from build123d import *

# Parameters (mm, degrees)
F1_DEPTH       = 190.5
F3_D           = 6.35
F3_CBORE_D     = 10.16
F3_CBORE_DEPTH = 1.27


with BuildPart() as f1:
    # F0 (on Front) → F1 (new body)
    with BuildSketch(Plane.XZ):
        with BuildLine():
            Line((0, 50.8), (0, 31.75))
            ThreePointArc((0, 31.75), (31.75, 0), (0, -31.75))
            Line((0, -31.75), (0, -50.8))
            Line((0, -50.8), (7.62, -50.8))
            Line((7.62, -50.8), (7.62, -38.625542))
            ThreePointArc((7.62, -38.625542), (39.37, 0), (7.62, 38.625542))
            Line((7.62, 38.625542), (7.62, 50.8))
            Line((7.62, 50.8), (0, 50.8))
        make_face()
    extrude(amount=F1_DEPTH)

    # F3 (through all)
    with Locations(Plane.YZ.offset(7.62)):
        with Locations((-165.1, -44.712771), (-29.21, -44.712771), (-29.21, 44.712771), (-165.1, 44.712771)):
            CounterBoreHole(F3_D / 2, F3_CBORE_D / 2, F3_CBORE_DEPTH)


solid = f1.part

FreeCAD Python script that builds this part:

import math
import FreeCAD as App
import Part
import Sketcher

V = App.Vector
Q = App.Units.Quantity

doc = App.newDocument("Part")
body = doc.addObject("PartDesign::Body", "Body")

# Sketch on XZ plane
sketch1 = body.newObject("Sketcher::SketchObject", "Sketch")
sketch1.AttachmentSupport = (doc.getObject("XZ_Plane"), [""])
sketch1.MapMode = "FlatFace"
sketch1.addGeometry(Part.LineSegment(V(0, 50.8, 0), V(0, 31.75, 0)), False)
sketch1.addGeometry(Part.ArcOfCircle(Part.Circle(V(0, 0, 0), V(0, 0, 1), 31.75), math.radians(-90), math.radians(90)), False)
sketch1.addGeometry(Part.LineSegment(V(0, -31.75, 0), V(0, -50.8, 0)), False)
sketch1.addGeometry(Part.LineSegment(V(0, -50.8, 0), V(7.62, -50.8, 0)), False)
sketch1.addGeometry(Part.LineSegment(V(7.62, -50.8, 0), V(7.62, -38.625542, 0)), False)
sketch1.addGeometry(Part.ArcOfCircle(Part.Circle(V(0, 0, 0), V(0, 0, 1), 39.37), math.radians(-78.840063), math.radians(78.840063)), False)
sketch1.addGeometry(Part.LineSegment(V(7.62, 38.625542, 0), V(7.62, 50.8, 0)), False)
sketch1.addGeometry(Part.LineSegment(V(7.62, 50.8, 0), V(0, 50.8, 0)), False)
sketch1.addConstraint(Sketcher.Constraint("Coincident", 0, 2, 1, 2))
sketch1.addConstraint(Sketcher.Constraint("Coincident", 1, 1, 2, 1))
sketch1.addConstraint(Sketcher.Constraint("Coincident", 2, 2, 3, 1))
sketch1.addConstraint(Sketcher.Constraint("Coincident", 3, 2, 4, 1))
sketch1.addConstraint(Sketcher.Constraint("Coincident", 4, 2, 5, 1))
sketch1.addConstraint(Sketcher.Constraint("Coincident", 5, 2, 6, 1))
sketch1.addConstraint(Sketcher.Constraint("Coincident", 6, 2, 7, 1))
sketch1.addConstraint(Sketcher.Constraint("Coincident", 7, 2, 0, 1))
sketch1.addConstraint(Sketcher.Constraint("Vertical", 0))
sketch1.addConstraint(Sketcher.Constraint("Vertical", 2))
sketch1.addConstraint(Sketcher.Constraint("Horizontal", 3))
sketch1.addConstraint(Sketcher.Constraint("Vertical", 4))
sketch1.addConstraint(Sketcher.Constraint("Vertical", 6))
sketch1.addConstraint(Sketcher.Constraint("Horizontal", 7))
sketch1.addConstraint(Sketcher.Constraint("Coincident", 1, 3, -1, 1))
sketch1.addConstraint(Sketcher.Constraint("Coincident", 5, 3, -1, 1))
sketch1.addConstraint(Sketcher.Constraint("Symmetric", 2, 2, 7, 2, -1, 1))
sketch1.addConstraint(Sketcher.Constraint("PointOnObject", 0, 2, -2))
sketch1.addConstraint(Sketcher.Constraint("Vertical", 4, 2, 5, 2))
sketch1.addConstraint(Sketcher.Constraint("Radius", 1, Q("1.25 in")))
sketch1.addConstraint(Sketcher.Constraint("Radius", 5, Q("1.55 in")))
sketch1.addConstraint(Sketcher.Constraint("DistanceX", 3, 1, 3, 2, Q("0.3 in")))
sketch1.addConstraint(Sketcher.Constraint("DistanceY", 2, 2, -1, 1, Q("2 in")))
pad1 = body.newObject("PartDesign::Pad", "Pad")
pad1.Profile = sketch1
pad1.Length = Q("7.5 in")

# Sketch on YZ plane
sketch2 = body.newObject("Sketcher::SketchObject", "Sketch001")
sketch2.AttachmentSupport = (doc.getObject("YZ_Plane"), [""])
sketch2.MapMode = "FlatFace"
sketch2.AttachmentOffset = App.Placement(V(0, 0, 0.3 * 25.4), App.Rotation())
sketch2.addGeometry(Part.Circle(V(-165.1, -44.712771, 0), V(0, 0, 1), 3.175), False)
sketch2.addGeometry(Part.Circle(V(-29.21, -44.712771, 0), V(0, 0, 1), 3.175), False)
sketch2.addGeometry(Part.Circle(V(-29.21, 44.712771, 0), V(0, 0, 1), 3.175), False)
sketch2.addGeometry(Part.Circle(V(-165.1, 44.712771, 0), V(0, 0, 1), 3.175), False)
sketch2.addConstraint(Sketcher.Constraint("Equal", 0, 1))
sketch2.addConstraint(Sketcher.Constraint("Equal", 1, 2))
sketch2.addConstraint(Sketcher.Constraint("Equal", 2, 3))
sketch2.addConstraint(Sketcher.Constraint("Symmetric", 1, 3, 2, 3, -1))
sketch2.addConstraint(Sketcher.Constraint("Symmetric", 0, 3, 3, 3, -1))
sketch2.addConstraint(Sketcher.Constraint("Horizontal", 0, 3, 1, 3))
sketch2.addConstraint(Sketcher.Constraint("Diameter", 0, Q("0.25 in")))
sketch2.addConstraint(Sketcher.Constraint("DistanceX", 0, 3, -1, 1, Q("6.5 in")))
sketch2.addConstraint(Sketcher.Constraint("DistanceX", 1, 3, -1, 1, Q("1.15 in")))
sketch2.addConstraint(Sketcher.Constraint("DistanceY", 0, 3, -1, 1, Q("44.712771 mm")))
doc.recompute()
hole = body.newObject("PartDesign::Hole", "Hole")
hole.Profile = sketch2
hole.ThreadType = "None"
hole.Diameter = Q("0.25 in")
hole.DepthType = "ThroughAll"
hole.HoleCutType = "Counterbore"
hole.HoleCutDiameter = Q("0.4 in")
hole.HoleCutDepth = Q("0.05 in")

doc.recompute()
